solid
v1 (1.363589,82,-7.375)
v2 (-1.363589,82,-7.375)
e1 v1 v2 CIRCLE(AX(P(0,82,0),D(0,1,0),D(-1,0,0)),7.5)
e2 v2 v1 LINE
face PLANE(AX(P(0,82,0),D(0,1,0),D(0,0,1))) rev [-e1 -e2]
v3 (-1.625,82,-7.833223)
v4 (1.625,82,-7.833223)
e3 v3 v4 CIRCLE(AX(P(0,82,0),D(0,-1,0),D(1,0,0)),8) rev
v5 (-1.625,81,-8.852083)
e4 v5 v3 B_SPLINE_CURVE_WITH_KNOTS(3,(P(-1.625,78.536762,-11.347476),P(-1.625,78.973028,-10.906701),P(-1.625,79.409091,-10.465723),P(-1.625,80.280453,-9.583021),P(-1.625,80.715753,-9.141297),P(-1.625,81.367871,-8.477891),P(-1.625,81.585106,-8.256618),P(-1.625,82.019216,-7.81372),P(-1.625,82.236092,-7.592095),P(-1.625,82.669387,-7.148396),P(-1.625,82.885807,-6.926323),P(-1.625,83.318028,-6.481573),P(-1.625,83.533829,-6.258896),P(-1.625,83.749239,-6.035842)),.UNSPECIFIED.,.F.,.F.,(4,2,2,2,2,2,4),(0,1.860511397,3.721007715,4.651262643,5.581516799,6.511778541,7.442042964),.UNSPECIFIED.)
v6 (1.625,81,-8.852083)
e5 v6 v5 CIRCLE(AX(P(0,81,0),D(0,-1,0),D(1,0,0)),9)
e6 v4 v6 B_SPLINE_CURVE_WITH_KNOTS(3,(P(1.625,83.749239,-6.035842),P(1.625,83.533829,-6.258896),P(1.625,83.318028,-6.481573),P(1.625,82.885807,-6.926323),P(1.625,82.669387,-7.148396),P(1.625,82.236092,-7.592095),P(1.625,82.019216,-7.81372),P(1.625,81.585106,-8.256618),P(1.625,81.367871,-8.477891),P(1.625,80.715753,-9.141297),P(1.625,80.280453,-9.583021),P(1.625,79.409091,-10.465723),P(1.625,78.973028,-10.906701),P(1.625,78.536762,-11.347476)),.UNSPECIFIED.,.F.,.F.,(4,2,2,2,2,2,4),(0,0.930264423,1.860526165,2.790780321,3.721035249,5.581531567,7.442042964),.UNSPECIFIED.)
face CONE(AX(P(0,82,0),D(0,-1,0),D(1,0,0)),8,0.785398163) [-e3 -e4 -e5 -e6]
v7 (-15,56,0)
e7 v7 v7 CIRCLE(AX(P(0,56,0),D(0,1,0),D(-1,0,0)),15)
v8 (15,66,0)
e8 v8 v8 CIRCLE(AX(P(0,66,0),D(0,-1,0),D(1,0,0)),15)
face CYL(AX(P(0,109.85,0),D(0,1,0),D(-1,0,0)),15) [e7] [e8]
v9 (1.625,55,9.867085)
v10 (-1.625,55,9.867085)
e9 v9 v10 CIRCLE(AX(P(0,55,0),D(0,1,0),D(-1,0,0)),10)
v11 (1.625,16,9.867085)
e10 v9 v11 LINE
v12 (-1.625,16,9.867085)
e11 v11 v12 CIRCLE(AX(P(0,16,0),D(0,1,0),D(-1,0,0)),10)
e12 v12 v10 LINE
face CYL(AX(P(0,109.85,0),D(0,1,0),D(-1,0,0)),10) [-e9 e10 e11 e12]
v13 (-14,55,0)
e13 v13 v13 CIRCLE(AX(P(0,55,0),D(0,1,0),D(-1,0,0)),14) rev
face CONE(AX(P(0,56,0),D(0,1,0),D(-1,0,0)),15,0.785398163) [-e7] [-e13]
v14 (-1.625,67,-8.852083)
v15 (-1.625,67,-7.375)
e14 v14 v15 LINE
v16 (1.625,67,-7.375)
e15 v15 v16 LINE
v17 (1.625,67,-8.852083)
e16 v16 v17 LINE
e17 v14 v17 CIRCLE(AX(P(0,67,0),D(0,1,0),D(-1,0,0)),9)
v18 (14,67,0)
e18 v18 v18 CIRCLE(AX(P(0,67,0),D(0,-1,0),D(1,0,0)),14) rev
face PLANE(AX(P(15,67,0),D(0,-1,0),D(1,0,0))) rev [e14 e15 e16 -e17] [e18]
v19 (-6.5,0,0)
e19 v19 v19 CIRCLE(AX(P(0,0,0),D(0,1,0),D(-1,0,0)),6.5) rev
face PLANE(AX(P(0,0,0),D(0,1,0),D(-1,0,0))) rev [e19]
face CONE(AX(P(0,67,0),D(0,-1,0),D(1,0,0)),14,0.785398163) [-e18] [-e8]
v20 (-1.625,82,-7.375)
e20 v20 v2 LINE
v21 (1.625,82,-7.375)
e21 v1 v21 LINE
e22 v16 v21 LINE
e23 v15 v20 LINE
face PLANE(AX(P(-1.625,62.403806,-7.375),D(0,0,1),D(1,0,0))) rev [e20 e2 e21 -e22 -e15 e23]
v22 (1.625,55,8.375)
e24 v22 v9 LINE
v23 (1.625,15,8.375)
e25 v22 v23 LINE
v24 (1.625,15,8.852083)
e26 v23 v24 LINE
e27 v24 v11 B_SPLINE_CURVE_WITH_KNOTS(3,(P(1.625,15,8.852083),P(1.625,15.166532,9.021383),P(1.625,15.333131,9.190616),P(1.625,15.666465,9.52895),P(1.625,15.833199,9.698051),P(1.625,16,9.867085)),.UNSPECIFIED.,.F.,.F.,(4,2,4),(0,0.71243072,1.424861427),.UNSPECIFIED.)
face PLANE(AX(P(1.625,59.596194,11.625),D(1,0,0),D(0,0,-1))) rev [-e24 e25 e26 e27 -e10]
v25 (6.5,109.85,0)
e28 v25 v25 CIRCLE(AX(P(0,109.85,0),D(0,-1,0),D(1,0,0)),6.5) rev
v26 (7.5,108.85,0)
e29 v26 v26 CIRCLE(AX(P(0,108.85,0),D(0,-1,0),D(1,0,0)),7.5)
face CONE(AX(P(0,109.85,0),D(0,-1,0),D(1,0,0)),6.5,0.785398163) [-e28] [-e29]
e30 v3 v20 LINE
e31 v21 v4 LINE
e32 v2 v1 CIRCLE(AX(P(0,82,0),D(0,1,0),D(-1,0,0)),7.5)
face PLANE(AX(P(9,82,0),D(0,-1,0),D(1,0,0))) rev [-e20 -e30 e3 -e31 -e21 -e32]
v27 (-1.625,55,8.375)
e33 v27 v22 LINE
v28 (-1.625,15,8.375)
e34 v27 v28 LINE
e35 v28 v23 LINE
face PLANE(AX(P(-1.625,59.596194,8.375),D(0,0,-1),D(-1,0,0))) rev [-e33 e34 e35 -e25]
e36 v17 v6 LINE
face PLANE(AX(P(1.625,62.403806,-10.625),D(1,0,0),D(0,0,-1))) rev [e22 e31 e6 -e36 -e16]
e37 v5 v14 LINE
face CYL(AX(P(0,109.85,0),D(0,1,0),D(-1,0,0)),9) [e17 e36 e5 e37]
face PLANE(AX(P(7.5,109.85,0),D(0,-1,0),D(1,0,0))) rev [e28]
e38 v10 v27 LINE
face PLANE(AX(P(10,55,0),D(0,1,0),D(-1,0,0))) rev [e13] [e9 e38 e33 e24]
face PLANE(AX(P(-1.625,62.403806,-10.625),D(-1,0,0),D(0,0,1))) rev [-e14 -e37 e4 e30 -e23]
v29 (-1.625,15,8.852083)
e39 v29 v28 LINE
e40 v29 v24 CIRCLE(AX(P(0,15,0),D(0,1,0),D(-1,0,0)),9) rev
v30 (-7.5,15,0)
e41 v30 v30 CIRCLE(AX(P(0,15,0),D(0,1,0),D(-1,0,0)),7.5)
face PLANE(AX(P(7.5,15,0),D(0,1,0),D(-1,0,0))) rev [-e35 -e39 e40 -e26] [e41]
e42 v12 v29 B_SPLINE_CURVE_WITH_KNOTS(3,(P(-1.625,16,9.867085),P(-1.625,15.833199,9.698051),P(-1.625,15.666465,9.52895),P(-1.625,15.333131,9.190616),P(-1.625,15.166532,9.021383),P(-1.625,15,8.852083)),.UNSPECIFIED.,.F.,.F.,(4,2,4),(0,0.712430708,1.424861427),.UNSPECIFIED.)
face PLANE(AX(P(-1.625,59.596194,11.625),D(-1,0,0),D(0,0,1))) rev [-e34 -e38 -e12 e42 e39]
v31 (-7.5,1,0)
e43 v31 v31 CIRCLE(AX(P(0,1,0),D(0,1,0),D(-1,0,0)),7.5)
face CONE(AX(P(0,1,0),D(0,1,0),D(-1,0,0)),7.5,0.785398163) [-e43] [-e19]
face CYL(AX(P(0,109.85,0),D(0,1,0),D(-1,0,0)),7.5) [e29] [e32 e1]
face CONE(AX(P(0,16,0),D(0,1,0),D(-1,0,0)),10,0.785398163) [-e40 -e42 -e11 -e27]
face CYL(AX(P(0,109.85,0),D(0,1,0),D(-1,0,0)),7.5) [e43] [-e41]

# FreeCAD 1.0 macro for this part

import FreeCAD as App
import Part
import Sketcher


def edges_at(feature, points):
    """Names of the edges that pass closest to the given points."""
    edges = feature.Shape.Edges
    near = lambda p: min(range(len(edges)), key=lambda i: edges[i].distToShape(Part.Vertex(*p))[0])
    return sorted({f"Edge{near(p) + 1}" for p in points})

doc = App.newDocument("Part")
body = doc.addObject("PartDesign::Body", "Body")

# Sketch on XY plane
sketch1 = doc.addObject("Sketcher::SketchObject", "Sketch")
body.addObject(sketch1)
sketch1.AttachmentSupport = (doc.XY_Plane, [""])
sketch1.MapMode = "FlatFace"
sketch1.addGeometry(Part.LineSegment(App.Vector(0, 0, 0), App.Vector(7.5, 0, 0)), False)
sketch1.addGeometry(Part.LineSegment(App.Vector(7.5, 0, 0), App.Vector(7.5, 15, 0)), False)
sketch1.addGeometry(Part.LineSegment(App.Vector(7.5, 15, 0), App.Vector(10, 15, 0)), False)
sketch1.addGeometry(Part.LineSegment(App.Vector(10, 15, 0), App.Vector(10, 55, 0)), False)
sketch1.addGeometry(Part.LineSegment(App.Vector(10, 55, 0), App.Vector(15, 55, 0)), False)
sketch1.addGeometry(Part.LineSegment(App.Vector(15, 55, 0), App.Vector(15, 67, 0)), False)
sketch1.addGeometry(Part.LineSegment(App.Vector(15, 67, 0), App.Vector(9, 67, 0)), False)
sketch1.addGeometry(Part.LineSegment(App.Vector(9, 67, 0), App.Vector(9, 82, 0)), False)
sketch1.addGeometry(Part.LineSegment(App.Vector(9, 82, 0), App.Vector(7.5, 82, 0)), False)
sketch1.addGeometry(Part.LineSegment(App.Vector(7.5, 82, 0), App.Vector(7.5, 109.8, 0)), False)
sketch1.addGeometry(Part.LineSegment(App.Vector(7.5, 109.8, 0), App.Vector(0, 109.8, 0)), False)
sketch1.addGeometry(Part.LineSegment(App.Vector(0, 109.8, 0), App.Vector(0, 0, 0)), False)
sketch1.addConstraint(Sketcher.Constraint("Coincident", 0, 2, 1, 1))
sketch1.addConstraint(Sketcher.Constraint("Coincident", 1, 2, 2, 1))
sketch1.addConstraint(Sketcher.Constraint("Coincident", 2, 2, 3, 1))
sketch1.addConstraint(Sketcher.Constraint("Coincident", 3, 2, 4, 1))
sketch1.addConstraint(Sketcher.Constraint("Coincident", 4, 2, 5, 1))
sketch1.addConstraint(Sketcher.Constraint("Coincident", 5, 2, 6, 1))
sketch1.addConstraint(Sketcher.Constraint("Coincident", 6, 2, 7, 1))
sketch1.addConstraint(Sketcher.Constraint("Coincident", 7, 2, 8, 1))
sketch1.addConstraint(Sketcher.Constraint("Coincident", 8, 2, 9, 1))
sketch1.addConstraint(Sketcher.Constraint("Coincident", 9, 2, 10, 1))
sketch1.addConstraint(Sketcher.Constraint("Coincident", 10, 2, 11, 1))
sketch1.addConstraint(Sketcher.Constraint("Coincident", 11, 2, 0, 1))
sketch1.addConstraint(Sketcher.Constraint("Horizontal", 0))
sketch1.addConstraint(Sketcher.Constraint("Vertical", 1))
sketch1.addConstraint(Sketcher.Constraint("Horizontal", 2))
sketch1.addConstraint(Sketcher.Constraint("Vertical", 3))
sketch1.addConstraint(Sketcher.Constraint("Horizontal", 4))
sketch1.addConstraint(Sketcher.Constraint("Vertical", 5))
sketch1.addConstraint(Sketcher.Constraint("Horizontal", 6))
sketch1.addConstraint(Sketcher.Constraint("Vertical", 7))
sketch1.addConstraint(Sketcher.Constraint("Horizontal", 8))
sketch1.addConstraint(Sketcher.Constraint("Vertical", 9))
sketch1.addConstraint(Sketcher.Constraint("Horizontal", 10))
sketch1.addConstraint(Sketcher.Constraint("Vertical", 11))
sketch1.addConstraint(Sketcher.Constraint("Coincident", 11, 2, -1, 1))
sketch1.addConstraint(Sketcher.Constraint("Vertical", 1, 2, 8, 2))
sketch1.addConstraint(Sketcher.Constraint("Equal", 1, 7))
sketch1.addConstraint(Sketcher.Constraint("DistanceX", 4, 1, 4, 2, 5.0))
sketch1.addConstraint(Sketcher.Constraint("DistanceX", 6, 2, 6, 1, 6.0))
sketch1.addConstraint(Sketcher.Constraint("DistanceY", 1, 1, 1, 2, 15.0))
sketch1.addConstraint(Sketcher.Constraint("DistanceY", 3, 1, 3, 2, 40.0))
sketch1.addConstraint(Sketcher.Constraint("DistanceY", 5, 1, 5, 2, 12.0))
sketch1.addConstraint(Sketcher.Constraint("DistanceX", 0, 1, 0, 2, 7.5))
sketch1.addConstraint(Sketcher.Constraint("DistanceX", 2, 1, 2, 2, 2.5))
sketch1.addConstraint(Sketcher.Constraint("DistanceY", 9, 1, 9, 2, 27.85))
revolution = doc.addObject("PartDesign::Revolution", "Revolution")
body.addObject(revolution)
revolution.Profile = sketch1
revolution.ReferenceAxis = (sketch1, ["V_Axis"])
revolution.Angle = 360

# Sketch on XZ plane
sketch2 = doc.addObject("Sketcher::SketchObject", "Sketch001")
body.addObject(sketch2)
sketch2.AttachmentSupport = (doc.XZ_Plane, [""])
sketch2.MapMode = "FlatFace"
sketch2.AttachmentOffset = App.Placement(App.Vector(0, 0, -15), App.Rotation())
sketch2.addGeometry(Part.LineSegment(App.Vector(-1.6, 11.6, 0), App.Vector(-1.6, 8.4, 0)), False)
sketch2.addGeometry(Part.LineSegment(App.Vector(-1.6, 8.4, 0), App.Vector(1.6, 8.4, 0)), False)
sketch2.addGeometry(Part.LineSegment(App.Vector(1.6, 8.4, 0), App.Vector(1.6, 11.6, 0)), False)
sketch2.addGeometry(Part.LineSegment(App.Vector(1.6, 11.6, 0), App.Vector(-1.6, 11.6, 0)), False)
sketch2.addConstraint(Sketcher.Constraint("Coincident", 0, 2, 1, 1))
sketch2.addConstraint(Sketcher.Constraint("Coincident", 1, 2, 2, 1))
sketch2.addConstraint(Sketcher.Constraint("Coincident", 2, 2, 3, 1))
sketch2.addConstraint(Sketcher.Constraint("Coincident", 3, 2, 0, 1))
sketch2.addConstraint(Sketcher.Constraint("Vertical", 0))
sketch2.addConstraint(Sketcher.Constraint("Horizontal", 1))
sketch2.addConstraint(Sketcher.Constraint("Vertical", 2))
sketch2.addConstraint(Sketcher.Constraint("Horizontal", 3))
sketch2.addConstraint(Sketcher.Constraint("Equal", 3, 0))
sketch2.addConstraint(Sketcher.Constraint("DistanceX", 1, 1, 1, 2, 3.25))
sketch2.addConstraint(Sketcher.Constraint("DistanceX", 0, 2, -1, 1, 1.625))
sketch2.addConstraint(Sketcher.Constraint("DistanceY", -1, 1, 0, 2, 8.375))
pocket1 = doc.addObject("PartDesign::Pocket", "Pocket")
body.addObject(pocket1)
pocket1.Profile = sketch2
pocket1.Length = 40
doc.recompute()

chamfer = doc.addObject("PartDesign::Chamfer", "Chamfer")
body.addObject(chamfer)
chamfer.Base = (pocket1, edges_at(pocket1, [
    (15, 67, 0),
    (15, 55, 0),
    (7.5, 0, 0),
    (0, 15, -10),
    (7.5, 109.85, 0),
    (9, 82, 0),
]))
chamfer.Size = 1

# Sketch on XZ plane
sketch3 = doc.addObject("Sketcher::SketchObject", "Sketch002")
body.addObject(sketch3)
sketch3.AttachmentSupport = (doc.XZ_Plane, [""])
sketch3.MapMode = "FlatFace"
sketch3.AttachmentOffset = App.Placement(App.Vector(0, 0, -82), App.Rotation())
sketch3.addGeometry(Part.LineSegment(App.Vector(-1.6, -10.6, 0), App.Vector(-1.6, -7.4, 0)), False)
sketch3.addGeometry(Part.LineSegment(App.Vector(-1.6, -7.4, 0), App.Vector(1.6, -7.4, 0)), False)
sketch3.addGeometry(Part.LineSegment(App.Vector(1.6, -7.4, 0), App.Vector(1.6, -10.6, 0)), False)
sketch3.addGeometry(Part.LineSegment(App.Vector(1.6, -10.6, 0), App.Vector(-1.6, -10.6, 0)), False)
sketch3.addConstraint(Sketcher.Constraint("Coincident", 0, 2, 1, 1))
sketch3.addConstraint(Sketcher.Constraint("Coincident", 1, 2, 2, 1))
sketch3.addConstraint(Sketcher.Constraint("Coincident", 2, 2, 3, 1))
sketch3.addConstraint(Sketcher.Constraint("Coincident", 3, 2, 0, 1))
sketch3.addConstraint(Sketcher.Constraint("Vertical", 0))
sketch3.addConstraint(Sketcher.Constraint("Horizontal", 1))
sketch3.addConstraint(Sketcher.Constraint("Vertical", 2))
sketch3.addConstraint(Sketcher.Constraint("Horizontal", 3))
sketch3.addConstraint(Sketcher.Constraint("Equal", 3, 0))
sketch3.addConstraint(Sketcher.Constraint("DistanceX", 1, 1, 1, 2, 3.25))
sketch3.addConstraint(Sketcher.Constraint("DistanceX", 0, 2, -1, 1, 1.625))
sketch3.addConstraint(Sketcher.Constraint("DistanceY", 0, 2, -1, 1, 7.375))
pocket2 = doc.addObject("PartDesign::Pocket", "Pocket001")
body.addObject(pocket2)
pocket2.Profile = sketch3
pocket2.Length = 15
pocket2.Reversed = True

doc.recompute()
